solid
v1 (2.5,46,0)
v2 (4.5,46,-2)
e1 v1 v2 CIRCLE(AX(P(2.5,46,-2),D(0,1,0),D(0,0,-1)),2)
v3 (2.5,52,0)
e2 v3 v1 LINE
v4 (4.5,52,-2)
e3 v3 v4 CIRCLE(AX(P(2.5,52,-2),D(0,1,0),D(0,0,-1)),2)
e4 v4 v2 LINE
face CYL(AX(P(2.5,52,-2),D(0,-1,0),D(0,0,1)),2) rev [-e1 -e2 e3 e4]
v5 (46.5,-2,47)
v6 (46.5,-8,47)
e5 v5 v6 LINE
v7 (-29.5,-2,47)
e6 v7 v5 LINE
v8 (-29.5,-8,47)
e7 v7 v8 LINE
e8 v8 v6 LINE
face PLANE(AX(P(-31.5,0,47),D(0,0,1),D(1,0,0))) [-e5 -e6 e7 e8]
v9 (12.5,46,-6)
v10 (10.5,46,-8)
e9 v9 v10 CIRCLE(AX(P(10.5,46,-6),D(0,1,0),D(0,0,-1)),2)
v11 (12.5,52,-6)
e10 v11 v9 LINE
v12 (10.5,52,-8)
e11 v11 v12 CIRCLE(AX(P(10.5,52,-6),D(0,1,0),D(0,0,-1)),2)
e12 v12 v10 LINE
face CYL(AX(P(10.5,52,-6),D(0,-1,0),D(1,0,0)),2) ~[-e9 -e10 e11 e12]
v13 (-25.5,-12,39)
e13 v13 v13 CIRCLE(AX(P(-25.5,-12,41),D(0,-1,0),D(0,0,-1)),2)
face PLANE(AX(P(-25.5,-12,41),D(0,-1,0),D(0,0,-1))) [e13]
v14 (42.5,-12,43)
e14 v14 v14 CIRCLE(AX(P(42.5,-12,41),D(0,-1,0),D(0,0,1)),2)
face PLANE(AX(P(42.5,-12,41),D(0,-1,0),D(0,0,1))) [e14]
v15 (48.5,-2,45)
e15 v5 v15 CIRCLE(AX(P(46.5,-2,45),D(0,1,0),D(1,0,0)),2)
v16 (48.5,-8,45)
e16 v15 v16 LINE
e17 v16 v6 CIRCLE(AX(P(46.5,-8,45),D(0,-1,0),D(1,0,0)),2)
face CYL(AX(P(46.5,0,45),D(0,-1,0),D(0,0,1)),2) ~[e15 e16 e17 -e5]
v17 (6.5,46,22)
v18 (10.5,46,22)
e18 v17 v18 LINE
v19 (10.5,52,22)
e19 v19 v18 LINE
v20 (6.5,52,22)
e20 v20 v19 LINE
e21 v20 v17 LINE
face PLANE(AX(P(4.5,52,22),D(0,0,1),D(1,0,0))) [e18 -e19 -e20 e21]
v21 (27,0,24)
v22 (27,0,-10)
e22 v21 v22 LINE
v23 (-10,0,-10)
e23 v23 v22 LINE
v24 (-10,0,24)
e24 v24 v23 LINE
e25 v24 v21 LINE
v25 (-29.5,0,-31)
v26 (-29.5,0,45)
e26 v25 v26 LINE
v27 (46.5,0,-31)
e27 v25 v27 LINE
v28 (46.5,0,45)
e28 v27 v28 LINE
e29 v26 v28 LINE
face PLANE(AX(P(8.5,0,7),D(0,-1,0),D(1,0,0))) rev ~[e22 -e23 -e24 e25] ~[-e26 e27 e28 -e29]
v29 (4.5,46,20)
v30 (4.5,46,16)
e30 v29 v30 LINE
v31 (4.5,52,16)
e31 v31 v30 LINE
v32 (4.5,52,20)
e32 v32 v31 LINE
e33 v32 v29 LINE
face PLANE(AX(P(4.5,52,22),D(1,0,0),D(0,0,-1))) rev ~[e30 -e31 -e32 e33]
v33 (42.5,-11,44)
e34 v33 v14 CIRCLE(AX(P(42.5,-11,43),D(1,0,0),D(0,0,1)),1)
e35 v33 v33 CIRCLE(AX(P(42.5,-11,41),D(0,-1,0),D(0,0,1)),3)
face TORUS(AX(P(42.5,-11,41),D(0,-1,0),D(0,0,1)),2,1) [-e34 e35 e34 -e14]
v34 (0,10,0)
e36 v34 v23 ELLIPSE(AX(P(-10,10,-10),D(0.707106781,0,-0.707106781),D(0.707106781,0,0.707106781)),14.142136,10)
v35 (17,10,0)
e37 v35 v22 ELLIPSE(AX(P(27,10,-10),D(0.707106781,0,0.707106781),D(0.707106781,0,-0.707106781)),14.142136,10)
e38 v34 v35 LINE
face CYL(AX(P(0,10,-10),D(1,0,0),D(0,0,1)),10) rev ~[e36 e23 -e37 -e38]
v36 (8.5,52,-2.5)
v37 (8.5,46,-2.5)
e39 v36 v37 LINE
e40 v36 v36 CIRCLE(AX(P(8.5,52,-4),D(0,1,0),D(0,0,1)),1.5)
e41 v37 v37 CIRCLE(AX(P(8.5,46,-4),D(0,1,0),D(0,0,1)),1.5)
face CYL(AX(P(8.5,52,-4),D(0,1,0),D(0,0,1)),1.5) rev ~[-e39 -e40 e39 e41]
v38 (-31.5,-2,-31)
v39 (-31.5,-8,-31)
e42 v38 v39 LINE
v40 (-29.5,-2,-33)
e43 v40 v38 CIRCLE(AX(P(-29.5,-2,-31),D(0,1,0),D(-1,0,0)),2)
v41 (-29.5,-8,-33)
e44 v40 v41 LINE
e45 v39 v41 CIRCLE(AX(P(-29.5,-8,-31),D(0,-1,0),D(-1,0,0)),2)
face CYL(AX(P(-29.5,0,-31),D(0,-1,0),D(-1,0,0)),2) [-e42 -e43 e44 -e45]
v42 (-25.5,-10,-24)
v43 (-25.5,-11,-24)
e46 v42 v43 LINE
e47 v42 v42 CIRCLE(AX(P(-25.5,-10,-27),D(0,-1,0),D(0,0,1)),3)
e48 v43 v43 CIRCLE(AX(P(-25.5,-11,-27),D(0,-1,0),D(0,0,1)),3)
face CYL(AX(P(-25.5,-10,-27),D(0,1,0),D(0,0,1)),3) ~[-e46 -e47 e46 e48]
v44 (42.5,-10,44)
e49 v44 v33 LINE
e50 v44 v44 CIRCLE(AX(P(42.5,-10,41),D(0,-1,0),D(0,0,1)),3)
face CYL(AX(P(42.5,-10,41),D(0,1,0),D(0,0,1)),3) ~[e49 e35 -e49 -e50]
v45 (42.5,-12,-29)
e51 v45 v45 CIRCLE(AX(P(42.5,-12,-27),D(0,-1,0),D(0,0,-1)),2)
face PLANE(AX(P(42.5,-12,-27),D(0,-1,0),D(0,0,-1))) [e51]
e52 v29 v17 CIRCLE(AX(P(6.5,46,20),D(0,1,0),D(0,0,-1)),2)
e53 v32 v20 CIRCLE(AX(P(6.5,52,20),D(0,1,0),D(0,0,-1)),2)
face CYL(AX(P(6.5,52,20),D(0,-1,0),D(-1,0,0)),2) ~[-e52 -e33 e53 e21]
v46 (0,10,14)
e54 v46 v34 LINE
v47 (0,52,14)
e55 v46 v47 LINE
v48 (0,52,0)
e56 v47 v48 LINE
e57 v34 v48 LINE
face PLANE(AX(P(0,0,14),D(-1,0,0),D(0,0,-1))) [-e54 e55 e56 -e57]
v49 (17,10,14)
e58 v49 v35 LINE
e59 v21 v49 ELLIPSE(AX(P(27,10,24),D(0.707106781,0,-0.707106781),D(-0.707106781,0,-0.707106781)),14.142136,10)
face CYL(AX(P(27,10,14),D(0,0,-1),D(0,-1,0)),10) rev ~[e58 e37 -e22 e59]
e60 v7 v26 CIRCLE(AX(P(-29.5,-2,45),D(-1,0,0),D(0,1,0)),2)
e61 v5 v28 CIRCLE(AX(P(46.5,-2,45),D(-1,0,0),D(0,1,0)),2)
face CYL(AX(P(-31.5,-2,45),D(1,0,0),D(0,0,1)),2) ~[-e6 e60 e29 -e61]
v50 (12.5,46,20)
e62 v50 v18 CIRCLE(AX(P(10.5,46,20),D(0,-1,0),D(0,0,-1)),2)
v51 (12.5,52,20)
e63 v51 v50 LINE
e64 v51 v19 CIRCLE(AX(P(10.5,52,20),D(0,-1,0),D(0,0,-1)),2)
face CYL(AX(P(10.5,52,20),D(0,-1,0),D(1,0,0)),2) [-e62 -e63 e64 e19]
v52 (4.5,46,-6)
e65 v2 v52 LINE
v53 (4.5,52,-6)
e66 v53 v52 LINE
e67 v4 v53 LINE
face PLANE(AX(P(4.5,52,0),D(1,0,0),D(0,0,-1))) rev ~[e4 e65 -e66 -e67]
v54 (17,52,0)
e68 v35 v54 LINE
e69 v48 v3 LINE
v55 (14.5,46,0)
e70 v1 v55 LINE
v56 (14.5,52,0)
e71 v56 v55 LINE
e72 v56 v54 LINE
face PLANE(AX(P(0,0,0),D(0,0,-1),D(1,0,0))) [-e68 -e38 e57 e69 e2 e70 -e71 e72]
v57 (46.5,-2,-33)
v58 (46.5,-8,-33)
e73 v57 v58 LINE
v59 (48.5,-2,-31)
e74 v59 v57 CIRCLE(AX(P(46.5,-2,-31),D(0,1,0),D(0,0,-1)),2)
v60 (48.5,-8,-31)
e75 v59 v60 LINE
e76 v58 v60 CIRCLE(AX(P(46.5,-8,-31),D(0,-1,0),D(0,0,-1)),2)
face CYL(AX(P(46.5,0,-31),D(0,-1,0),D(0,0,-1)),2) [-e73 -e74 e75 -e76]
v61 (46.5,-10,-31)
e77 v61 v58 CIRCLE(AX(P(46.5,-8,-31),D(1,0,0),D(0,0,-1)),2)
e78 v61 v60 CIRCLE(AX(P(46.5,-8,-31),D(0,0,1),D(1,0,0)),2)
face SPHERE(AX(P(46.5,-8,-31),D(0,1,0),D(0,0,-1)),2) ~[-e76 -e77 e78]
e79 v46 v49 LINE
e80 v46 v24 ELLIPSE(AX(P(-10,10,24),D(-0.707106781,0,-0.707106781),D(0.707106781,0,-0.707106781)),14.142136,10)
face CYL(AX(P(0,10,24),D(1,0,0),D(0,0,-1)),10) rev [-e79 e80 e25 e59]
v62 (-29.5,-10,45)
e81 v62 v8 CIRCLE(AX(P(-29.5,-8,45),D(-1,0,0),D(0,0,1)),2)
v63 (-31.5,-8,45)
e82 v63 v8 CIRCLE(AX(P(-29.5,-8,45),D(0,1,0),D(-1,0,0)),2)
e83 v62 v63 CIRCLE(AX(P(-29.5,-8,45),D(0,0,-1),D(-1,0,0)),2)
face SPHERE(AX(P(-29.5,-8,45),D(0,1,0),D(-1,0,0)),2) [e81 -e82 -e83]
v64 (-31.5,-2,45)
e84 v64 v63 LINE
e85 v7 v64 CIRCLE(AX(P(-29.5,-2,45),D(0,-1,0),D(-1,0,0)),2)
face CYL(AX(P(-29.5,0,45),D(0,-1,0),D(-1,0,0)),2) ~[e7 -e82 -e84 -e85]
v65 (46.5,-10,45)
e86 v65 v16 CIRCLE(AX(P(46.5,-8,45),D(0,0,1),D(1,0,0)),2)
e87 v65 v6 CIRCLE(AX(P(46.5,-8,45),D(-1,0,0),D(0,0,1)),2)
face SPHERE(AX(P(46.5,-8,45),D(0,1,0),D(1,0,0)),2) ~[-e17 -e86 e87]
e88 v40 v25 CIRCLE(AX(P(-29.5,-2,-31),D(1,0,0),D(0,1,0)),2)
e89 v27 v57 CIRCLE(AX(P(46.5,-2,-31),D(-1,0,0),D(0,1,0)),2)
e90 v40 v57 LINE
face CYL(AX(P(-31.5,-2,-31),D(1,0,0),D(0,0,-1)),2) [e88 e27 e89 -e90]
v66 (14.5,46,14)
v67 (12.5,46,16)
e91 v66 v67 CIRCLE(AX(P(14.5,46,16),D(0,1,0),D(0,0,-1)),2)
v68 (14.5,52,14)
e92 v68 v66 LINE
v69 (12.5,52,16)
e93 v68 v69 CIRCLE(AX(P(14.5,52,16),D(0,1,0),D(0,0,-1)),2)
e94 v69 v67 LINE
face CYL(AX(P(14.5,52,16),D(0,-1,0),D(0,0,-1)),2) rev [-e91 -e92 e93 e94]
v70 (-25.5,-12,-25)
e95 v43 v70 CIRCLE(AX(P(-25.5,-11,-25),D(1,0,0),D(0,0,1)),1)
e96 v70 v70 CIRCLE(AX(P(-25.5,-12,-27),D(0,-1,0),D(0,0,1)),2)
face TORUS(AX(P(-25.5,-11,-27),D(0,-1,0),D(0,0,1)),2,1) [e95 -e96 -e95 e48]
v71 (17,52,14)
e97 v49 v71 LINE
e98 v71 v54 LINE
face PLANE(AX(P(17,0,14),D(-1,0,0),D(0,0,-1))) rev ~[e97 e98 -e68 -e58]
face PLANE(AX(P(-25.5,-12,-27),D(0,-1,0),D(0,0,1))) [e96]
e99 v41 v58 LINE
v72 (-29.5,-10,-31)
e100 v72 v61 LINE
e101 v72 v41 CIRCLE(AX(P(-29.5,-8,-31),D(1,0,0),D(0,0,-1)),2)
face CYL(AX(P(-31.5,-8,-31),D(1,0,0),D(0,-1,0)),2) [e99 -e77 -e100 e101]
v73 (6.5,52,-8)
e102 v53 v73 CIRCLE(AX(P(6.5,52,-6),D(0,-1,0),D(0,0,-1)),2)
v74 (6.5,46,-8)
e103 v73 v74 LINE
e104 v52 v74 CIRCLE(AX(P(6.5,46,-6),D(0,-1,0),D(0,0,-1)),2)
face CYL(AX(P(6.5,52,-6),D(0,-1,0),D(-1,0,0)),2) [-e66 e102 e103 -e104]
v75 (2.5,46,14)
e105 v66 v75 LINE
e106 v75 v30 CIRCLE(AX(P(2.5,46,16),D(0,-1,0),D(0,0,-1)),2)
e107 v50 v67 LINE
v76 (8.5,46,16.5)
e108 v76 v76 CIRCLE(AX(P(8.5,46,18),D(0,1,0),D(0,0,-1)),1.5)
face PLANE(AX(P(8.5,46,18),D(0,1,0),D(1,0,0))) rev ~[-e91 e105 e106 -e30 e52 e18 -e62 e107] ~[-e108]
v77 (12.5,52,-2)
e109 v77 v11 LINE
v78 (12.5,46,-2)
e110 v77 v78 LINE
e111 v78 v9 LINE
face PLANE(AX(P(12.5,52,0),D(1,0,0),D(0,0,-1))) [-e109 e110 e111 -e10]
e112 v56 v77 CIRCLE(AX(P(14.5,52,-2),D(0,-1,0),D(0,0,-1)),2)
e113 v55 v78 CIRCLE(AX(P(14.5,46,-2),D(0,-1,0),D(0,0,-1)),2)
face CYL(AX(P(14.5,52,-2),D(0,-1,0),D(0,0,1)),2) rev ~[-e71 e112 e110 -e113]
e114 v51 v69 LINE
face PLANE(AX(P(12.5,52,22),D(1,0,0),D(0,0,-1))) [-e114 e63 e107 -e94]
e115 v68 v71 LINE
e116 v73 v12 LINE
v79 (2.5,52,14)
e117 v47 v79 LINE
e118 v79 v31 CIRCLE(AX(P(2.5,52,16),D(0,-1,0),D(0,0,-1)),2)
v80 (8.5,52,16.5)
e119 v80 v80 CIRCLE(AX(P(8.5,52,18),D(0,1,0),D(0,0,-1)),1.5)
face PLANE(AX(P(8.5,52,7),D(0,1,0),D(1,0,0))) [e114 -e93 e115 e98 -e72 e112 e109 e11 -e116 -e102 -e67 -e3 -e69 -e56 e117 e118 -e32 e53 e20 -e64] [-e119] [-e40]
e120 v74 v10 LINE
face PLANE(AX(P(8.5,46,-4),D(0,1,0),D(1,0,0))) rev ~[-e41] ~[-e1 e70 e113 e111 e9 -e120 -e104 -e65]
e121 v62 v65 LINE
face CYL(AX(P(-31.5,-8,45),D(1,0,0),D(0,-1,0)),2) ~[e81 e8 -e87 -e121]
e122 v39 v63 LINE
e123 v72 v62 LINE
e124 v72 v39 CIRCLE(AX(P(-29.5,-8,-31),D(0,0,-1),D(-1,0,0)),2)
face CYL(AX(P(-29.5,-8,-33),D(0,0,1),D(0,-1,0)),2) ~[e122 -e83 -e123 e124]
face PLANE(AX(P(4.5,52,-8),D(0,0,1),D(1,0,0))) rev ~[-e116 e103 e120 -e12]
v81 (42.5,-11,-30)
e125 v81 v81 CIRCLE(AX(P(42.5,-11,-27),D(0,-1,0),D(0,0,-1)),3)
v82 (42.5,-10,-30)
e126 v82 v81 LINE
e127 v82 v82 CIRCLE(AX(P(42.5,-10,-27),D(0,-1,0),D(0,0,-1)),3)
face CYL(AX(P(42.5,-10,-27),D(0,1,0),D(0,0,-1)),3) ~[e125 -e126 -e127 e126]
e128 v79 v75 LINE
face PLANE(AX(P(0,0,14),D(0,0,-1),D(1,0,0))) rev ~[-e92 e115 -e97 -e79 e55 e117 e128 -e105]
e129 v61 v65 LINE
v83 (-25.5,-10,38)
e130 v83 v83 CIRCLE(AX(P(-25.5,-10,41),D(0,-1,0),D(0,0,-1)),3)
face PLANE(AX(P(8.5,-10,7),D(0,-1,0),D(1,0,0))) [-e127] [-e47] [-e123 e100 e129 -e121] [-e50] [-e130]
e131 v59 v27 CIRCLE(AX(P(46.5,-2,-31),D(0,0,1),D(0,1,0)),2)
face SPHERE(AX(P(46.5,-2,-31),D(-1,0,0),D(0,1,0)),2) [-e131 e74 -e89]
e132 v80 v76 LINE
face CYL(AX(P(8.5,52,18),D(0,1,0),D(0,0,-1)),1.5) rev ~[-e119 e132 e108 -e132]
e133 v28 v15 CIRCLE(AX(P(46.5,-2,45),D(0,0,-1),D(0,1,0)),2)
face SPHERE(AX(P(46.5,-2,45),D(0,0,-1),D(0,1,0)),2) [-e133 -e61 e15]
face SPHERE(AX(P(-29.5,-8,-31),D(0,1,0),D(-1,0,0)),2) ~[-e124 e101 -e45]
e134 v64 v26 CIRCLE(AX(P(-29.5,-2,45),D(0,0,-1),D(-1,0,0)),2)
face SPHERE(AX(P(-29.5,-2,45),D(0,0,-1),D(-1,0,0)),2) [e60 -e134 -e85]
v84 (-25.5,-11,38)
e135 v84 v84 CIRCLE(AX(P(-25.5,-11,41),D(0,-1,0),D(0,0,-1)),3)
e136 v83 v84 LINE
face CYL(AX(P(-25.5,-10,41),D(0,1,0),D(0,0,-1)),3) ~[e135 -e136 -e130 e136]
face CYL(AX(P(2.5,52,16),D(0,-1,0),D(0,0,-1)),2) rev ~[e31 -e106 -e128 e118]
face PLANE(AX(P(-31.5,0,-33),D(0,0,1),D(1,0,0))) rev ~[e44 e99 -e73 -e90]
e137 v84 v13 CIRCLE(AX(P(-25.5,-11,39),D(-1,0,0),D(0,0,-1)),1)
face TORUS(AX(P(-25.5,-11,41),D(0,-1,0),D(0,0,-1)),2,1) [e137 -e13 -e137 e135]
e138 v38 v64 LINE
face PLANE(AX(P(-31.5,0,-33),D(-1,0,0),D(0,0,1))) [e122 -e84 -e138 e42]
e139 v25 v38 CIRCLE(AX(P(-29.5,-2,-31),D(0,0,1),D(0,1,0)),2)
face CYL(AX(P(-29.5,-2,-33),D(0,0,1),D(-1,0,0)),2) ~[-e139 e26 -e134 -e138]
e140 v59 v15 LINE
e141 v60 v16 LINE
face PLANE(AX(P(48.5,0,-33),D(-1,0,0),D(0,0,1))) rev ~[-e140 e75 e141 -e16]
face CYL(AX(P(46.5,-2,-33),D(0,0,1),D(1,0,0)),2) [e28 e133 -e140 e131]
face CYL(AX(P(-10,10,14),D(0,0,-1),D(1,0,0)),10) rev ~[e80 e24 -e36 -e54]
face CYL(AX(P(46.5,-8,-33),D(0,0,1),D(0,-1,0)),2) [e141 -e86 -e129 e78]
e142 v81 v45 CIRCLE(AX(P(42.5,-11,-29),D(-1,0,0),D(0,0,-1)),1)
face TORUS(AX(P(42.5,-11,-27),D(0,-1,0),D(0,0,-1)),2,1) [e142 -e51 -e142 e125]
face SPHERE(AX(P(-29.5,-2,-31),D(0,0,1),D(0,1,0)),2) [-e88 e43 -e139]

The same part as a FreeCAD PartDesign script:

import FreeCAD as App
import Part
import Sketcher
from FreeCAD import Vector


def edges_at(feature, points):
    """Names of the edges that pass closest to the given points."""
    edges = feature.Shape.Edges
    near = lambda p: min(range(len(edges)), key=lambda i: edges[i].distToShape(Part.Vertex(*p))[0])
    return sorted({f"Edge{near(p) + 1}" for p in points})

doc = App.newDocument("Part")
body = doc.addObject("PartDesign::Body", "Body")

# Sketch on XZ plane
sketch1 = doc.addObject("Sketcher::SketchObject", "Sketch")
body.addObject(sketch1)
sketch1.AttachmentSupport = (doc.XZ_Plane, [""])
sketch1.MapMode = "FlatFace"
sketch1.addGeometry([
    Part.LineSegment(Vector(0, 0, 0), Vector(0, 14, 0)),
    Part.LineSegment(Vector(0, 14, 0), Vector(17, 14, 0)),
    Part.LineSegment(Vector(17, 14, 0), Vector(17, 0, 0)),
    Part.LineSegment(Vector(17, 0, 0), Vector(0, 0, 0)),
], False)
sketch1.addConstraint([
    Sketcher.Constraint("Coincident", 0, 2, 1, 1),
    Sketcher.Constraint("Coincident", 1, 2, 2, 1),
    Sketcher.Constraint("Coincident", 2, 2, 3, 1),
    Sketcher.Constraint("Coincident", 3, 2, 0, 1),
    Sketcher.Constraint("Vertical", 0),
    Sketcher.Constraint("Horizontal", 1),
    Sketcher.Constraint("Vertical", 2),
    Sketcher.Constraint("Horizontal", 3),
    Sketcher.Constraint("Coincident", 3, 2, -1, 1),
    Sketcher.Constraint("DistanceX", 1, 1, 1, 2, 17.0),
    Sketcher.Constraint("DistanceY", 0, 1, 0, 2, 14.0),
])
pad1 = doc.addObject("PartDesign::Pad", "Pad")
body.addObject(pad1)
pad1.Profile = sketch1
pad1.Length = 52
pad1.Reversed = True

# Sketch on XZ plane
sketch2 = doc.addObject("Sketcher::SketchObject", "Sketch001")
body.addObject(sketch2)
sketch2.AttachmentSupport = (doc.XZ_Plane, [""])
sketch2.MapMode = "FlatFace"
sketch2.addGeometry([
    Part.LineSegment(Vector(-32, 47, 0), Vector(-32, -33, 0)),
    Part.LineSegment(Vector(-32, -33, 0), Vector(48, -33, 0)),
    Part.LineSegment(Vector(48, -33, 0), Vector(48, 47, 0)),
    Part.LineSegment(Vector(48, 47, 0), Vector(-32, 47, 0)),
], False)
sketch2.addConstraint([
    Sketcher.Constraint("Coincident", 0, 2, 1, 1),
    Sketcher.Constraint("Coincident", 1, 2, 2, 1),
    Sketcher.Constraint("Coincident", 2, 2, 3, 1),
    Sketcher.Constraint("Coincident", 3, 2, 0, 1),
    Sketcher.Constraint("Vertical", 0),
    Sketcher.Constraint("Horizontal", 1),
    Sketcher.Constraint("Vertical", 2),
    Sketcher.Constraint("Horizontal", 3),
    Sketcher.Constraint("Equal", 3, 0),
    Sketcher.Constraint("DistanceX", 1, 1, 1, 2, 80.0),
    Sketcher.Constraint("DistanceY", 0, 2, -1, 1, 33.0),
    Sketcher.Constraint("DistanceX", 0, 2, -1, 1, 31.5),
])
pad2 = doc.addObject("PartDesign::Pad", "Pad001")
body.addObject(pad2)
pad2.Profile = sketch2
pad2.Length = 10

# Sketch on XZ plane
sketch3 = doc.addObject("Sketcher::SketchObject", "Sketch002")
body.addObject(sketch3)
sketch3.AttachmentSupport = (doc.XZ_Plane, [""])
sketch3.MapMode = "FlatFace"
sketch3.AttachmentOffset = App.Placement(Vector(0, 0, -52), App.Rotation())
sketch3.addGeometry([
    Part.LineSegment(Vector(4.5, -8, 0), Vector(4.5, 0, 0)),  # 0
    Part.LineSegment(Vector(4.5, 0, 0), Vector(12.5, 0, 0)),  # 1
    Part.LineSegment(Vector(12.5, 0, 0), Vector(12.5, -8, 0)),  # 2
    Part.LineSegment(Vector(12.5, -8, 0), Vector(4.5, -8, 0)),  # 3
    Part.Circle(Vector(8.5, -4, 0), Vector(0, 0, 1), 1.5),  # 4
    Part.LineSegment(Vector(4.5, 14, 0), Vector(4.5, 22, 0)),  # 5
    Part.LineSegment(Vector(4.5, 22, 0), Vector(12.5, 22, 0)),  # 6
    Part.LineSegment(Vector(12.5, 22, 0), Vector(12.5, 14, 0)),  # 7
    Part.LineSegment(Vector(12.5, 14, 0), Vector(4.5, 14, 0)),  # 8
    Part.Circle(Vector(8.5, 18, 0), Vector(0, 0, 1), 1.5),  # 9
], False)
sketch3.addConstraint([
    Sketcher.Constraint("Coincident", 0, 2, 1, 1),
    Sketcher.Constraint("Coincident", 1, 2, 2, 1),
    Sketcher.Constraint("Coincident", 2, 2, 3, 1),
    Sketcher.Constraint("Coincident", 3, 2, 0, 1),
    Sketcher.Constraint("Coincident", 5, 2, 6, 1),
    Sketcher.Constraint("Coincident", 6, 2, 7, 1),
    Sketcher.Constraint("Coincident", 7, 2, 8, 1),
    Sketcher.Constraint("Coincident", 8, 2, 5, 1),
    Sketcher.Constraint("Vertical", 0),
    Sketcher.Constraint("Horizontal", 1),
    Sketcher.Constraint("Vertical", 2),
    Sketcher.Constraint("Horizontal", 3),
    Sketcher.Constraint("Vertical", 5),
    Sketcher.Constraint("Horizontal", 6),
    Sketcher.Constraint("Vertical", 7),
    Sketcher.Constraint("Horizontal", 8),
    Sketcher.Constraint("Equal", 4, 9),
    Sketcher.Constraint("PointOnObject", 0, 2, -1),
    Sketcher.Constraint("Vertical", 4, 3, 9, 3),
    Sketcher.Constraint("Vertical", 3, 2, 5, 2),
    Sketcher.Constraint("Vertical", 2, 2, 6, 2),
    Sketcher.Constraint("Equal", 8, 0),
    Sketcher.Constraint("Equal", 2, 5),
    Sketcher.Constraint("Diameter", 4, 3.0),
    Sketcher.Constraint("DistanceX", 1, 1, 1, 2, 8.0),
    Sketcher.Constraint("DistanceY", 4, 3, -1, 1, 4.0),
    Sketcher.Constraint("DistanceY", -1, 1, 9, 3, 18.0),
    Sketcher.Constraint("DistanceY", -1, 1, 5, 2, 22.0),
    Sketcher.Constraint("DistanceX", 0, 2, 4, 3, 4.0),
    Sketcher.Constraint("DistanceX", -1, 1, 4, 3, 8.5),
])
pad3 = doc.addObject("PartDesign::Pad", "Pad002")
body.addObject(pad3)
pad3.Profile = sketch3
pad3.Length = 6
doc.recompute()

fillet = doc.addObject("PartDesign::Fillet", "Fillet")
body.addObject(fillet)
fillet.Base = (pad3, edges_at(pad3, [
    (4.5, 49, 0),
    (4.5, 49, -8),
    (12.5, 49, -8),
    (12.5, 49, 0),
    (4.5, 49, 22),
    (4.5, 49, 14),
    (12.5, 49, 14),
    (12.5, 49, 22),
]))
fillet.Radius = 2
doc.recompute()

fillet2 = doc.addObject("PartDesign::Fillet", "Fillet001")
body.addObject(fillet2)
fillet2.Base = (fillet, edges_at(fillet, [
    (8.5, 0, 0),
    (17, 0, 7),
    (8.5, 0, 14),
    (0, 0, 7),
]))
fillet2.Radius = 10

# Sketch on XZ plane
sketch4 = doc.addObject("Sketcher::SketchObject", "Sketch003")
body.addObject(sketch4)
sketch4.AttachmentSupport = (doc.XZ_Plane, [""])
sketch4.MapMode = "FlatFace"
sketch4.AttachmentOffset = App.Placement(Vector(0, 0, 10), App.Rotation())
sketch4.addGeometry([
    Part.Circle(Vector(-25.5, 41, 0), Vector(0, 0, 1), 3),
    Part.Circle(Vector(-25.5, -27, 0), Vector(0, 0, 1), 3),
    Part.Circle(Vector(42.5, -27, 0), Vector(0, 0, 1), 3),
    Part.Circle(Vector(42.5, 41, 0), Vector(0, 0, 1), 3),
], False)
sketch4.addConstraint([
    Sketcher.Constraint("Equal", 0, 1),
    Sketcher.Constraint("Equal", 1, 2),
    Sketcher.Constraint("Equal", 2, 3),
    Sketcher.Constraint("Horizontal", 1, 3, 2, 3),
    Sketcher.Constraint("Horizontal", 0, 3, 3, 3),
    Sketcher.Constraint("Vertical", 0, 3, 1, 3),
    Sketcher.Constraint("Vertical", 2, 3, 3, 3),
    Sketcher.Constraint("Diameter", 0, 6.0),
    Sketcher.Constraint("DistanceY", -1, 1, 0, 3, 41.0),
    Sketcher.Constraint("DistanceY", 1, 3, -1, 1, 27.0),
    Sketcher.Constraint("DistanceX", 1, 3, 2, 3, 68.0),
    Sketcher.Constraint("DistanceX", 0, 3, -1, 1, 25.5),
])
pad4 = doc.addObject("PartDesign::Pad", "Pad003")
body.addObject(pad4)
pad4.Profile = sketch4
pad4.Length = 2
doc.recompute()

fillet3 = doc.addObject("PartDesign::Fillet", "Fillet002")
body.addObject(fillet3)
fillet3.Base = (pad4, edges_at(pad4, [
    (-25.5, -12, 44),
    (-25.5, -12, -30),
    (42.5, -12, -24),
    (42.5, -12, 38),
]))
fillet3.Radius = 1
doc.recompute()

fillet4 = doc.addObject("PartDesign::Fillet", "Fillet003")
body.addObject(fillet4)
fillet4.Base = (fillet3, edges_at(fillet3, [
    (-31.5, 0, 7),
    (-31.5, -5, 47),
    (8.5, 0, -33),
    (-31.5, -5, -33),
    (48.5, 0, 7),
    (48.5, -5, -33),
    (8.5, 0, 47),
    (48.5, -5, 47),
    (-31.5, -10, 7),
    (8.5, -10, -33),
    (48.5, -10, 7),
    (8.5, -10, 47),
]))
fillet4.Radius = 2

doc.recompute()
